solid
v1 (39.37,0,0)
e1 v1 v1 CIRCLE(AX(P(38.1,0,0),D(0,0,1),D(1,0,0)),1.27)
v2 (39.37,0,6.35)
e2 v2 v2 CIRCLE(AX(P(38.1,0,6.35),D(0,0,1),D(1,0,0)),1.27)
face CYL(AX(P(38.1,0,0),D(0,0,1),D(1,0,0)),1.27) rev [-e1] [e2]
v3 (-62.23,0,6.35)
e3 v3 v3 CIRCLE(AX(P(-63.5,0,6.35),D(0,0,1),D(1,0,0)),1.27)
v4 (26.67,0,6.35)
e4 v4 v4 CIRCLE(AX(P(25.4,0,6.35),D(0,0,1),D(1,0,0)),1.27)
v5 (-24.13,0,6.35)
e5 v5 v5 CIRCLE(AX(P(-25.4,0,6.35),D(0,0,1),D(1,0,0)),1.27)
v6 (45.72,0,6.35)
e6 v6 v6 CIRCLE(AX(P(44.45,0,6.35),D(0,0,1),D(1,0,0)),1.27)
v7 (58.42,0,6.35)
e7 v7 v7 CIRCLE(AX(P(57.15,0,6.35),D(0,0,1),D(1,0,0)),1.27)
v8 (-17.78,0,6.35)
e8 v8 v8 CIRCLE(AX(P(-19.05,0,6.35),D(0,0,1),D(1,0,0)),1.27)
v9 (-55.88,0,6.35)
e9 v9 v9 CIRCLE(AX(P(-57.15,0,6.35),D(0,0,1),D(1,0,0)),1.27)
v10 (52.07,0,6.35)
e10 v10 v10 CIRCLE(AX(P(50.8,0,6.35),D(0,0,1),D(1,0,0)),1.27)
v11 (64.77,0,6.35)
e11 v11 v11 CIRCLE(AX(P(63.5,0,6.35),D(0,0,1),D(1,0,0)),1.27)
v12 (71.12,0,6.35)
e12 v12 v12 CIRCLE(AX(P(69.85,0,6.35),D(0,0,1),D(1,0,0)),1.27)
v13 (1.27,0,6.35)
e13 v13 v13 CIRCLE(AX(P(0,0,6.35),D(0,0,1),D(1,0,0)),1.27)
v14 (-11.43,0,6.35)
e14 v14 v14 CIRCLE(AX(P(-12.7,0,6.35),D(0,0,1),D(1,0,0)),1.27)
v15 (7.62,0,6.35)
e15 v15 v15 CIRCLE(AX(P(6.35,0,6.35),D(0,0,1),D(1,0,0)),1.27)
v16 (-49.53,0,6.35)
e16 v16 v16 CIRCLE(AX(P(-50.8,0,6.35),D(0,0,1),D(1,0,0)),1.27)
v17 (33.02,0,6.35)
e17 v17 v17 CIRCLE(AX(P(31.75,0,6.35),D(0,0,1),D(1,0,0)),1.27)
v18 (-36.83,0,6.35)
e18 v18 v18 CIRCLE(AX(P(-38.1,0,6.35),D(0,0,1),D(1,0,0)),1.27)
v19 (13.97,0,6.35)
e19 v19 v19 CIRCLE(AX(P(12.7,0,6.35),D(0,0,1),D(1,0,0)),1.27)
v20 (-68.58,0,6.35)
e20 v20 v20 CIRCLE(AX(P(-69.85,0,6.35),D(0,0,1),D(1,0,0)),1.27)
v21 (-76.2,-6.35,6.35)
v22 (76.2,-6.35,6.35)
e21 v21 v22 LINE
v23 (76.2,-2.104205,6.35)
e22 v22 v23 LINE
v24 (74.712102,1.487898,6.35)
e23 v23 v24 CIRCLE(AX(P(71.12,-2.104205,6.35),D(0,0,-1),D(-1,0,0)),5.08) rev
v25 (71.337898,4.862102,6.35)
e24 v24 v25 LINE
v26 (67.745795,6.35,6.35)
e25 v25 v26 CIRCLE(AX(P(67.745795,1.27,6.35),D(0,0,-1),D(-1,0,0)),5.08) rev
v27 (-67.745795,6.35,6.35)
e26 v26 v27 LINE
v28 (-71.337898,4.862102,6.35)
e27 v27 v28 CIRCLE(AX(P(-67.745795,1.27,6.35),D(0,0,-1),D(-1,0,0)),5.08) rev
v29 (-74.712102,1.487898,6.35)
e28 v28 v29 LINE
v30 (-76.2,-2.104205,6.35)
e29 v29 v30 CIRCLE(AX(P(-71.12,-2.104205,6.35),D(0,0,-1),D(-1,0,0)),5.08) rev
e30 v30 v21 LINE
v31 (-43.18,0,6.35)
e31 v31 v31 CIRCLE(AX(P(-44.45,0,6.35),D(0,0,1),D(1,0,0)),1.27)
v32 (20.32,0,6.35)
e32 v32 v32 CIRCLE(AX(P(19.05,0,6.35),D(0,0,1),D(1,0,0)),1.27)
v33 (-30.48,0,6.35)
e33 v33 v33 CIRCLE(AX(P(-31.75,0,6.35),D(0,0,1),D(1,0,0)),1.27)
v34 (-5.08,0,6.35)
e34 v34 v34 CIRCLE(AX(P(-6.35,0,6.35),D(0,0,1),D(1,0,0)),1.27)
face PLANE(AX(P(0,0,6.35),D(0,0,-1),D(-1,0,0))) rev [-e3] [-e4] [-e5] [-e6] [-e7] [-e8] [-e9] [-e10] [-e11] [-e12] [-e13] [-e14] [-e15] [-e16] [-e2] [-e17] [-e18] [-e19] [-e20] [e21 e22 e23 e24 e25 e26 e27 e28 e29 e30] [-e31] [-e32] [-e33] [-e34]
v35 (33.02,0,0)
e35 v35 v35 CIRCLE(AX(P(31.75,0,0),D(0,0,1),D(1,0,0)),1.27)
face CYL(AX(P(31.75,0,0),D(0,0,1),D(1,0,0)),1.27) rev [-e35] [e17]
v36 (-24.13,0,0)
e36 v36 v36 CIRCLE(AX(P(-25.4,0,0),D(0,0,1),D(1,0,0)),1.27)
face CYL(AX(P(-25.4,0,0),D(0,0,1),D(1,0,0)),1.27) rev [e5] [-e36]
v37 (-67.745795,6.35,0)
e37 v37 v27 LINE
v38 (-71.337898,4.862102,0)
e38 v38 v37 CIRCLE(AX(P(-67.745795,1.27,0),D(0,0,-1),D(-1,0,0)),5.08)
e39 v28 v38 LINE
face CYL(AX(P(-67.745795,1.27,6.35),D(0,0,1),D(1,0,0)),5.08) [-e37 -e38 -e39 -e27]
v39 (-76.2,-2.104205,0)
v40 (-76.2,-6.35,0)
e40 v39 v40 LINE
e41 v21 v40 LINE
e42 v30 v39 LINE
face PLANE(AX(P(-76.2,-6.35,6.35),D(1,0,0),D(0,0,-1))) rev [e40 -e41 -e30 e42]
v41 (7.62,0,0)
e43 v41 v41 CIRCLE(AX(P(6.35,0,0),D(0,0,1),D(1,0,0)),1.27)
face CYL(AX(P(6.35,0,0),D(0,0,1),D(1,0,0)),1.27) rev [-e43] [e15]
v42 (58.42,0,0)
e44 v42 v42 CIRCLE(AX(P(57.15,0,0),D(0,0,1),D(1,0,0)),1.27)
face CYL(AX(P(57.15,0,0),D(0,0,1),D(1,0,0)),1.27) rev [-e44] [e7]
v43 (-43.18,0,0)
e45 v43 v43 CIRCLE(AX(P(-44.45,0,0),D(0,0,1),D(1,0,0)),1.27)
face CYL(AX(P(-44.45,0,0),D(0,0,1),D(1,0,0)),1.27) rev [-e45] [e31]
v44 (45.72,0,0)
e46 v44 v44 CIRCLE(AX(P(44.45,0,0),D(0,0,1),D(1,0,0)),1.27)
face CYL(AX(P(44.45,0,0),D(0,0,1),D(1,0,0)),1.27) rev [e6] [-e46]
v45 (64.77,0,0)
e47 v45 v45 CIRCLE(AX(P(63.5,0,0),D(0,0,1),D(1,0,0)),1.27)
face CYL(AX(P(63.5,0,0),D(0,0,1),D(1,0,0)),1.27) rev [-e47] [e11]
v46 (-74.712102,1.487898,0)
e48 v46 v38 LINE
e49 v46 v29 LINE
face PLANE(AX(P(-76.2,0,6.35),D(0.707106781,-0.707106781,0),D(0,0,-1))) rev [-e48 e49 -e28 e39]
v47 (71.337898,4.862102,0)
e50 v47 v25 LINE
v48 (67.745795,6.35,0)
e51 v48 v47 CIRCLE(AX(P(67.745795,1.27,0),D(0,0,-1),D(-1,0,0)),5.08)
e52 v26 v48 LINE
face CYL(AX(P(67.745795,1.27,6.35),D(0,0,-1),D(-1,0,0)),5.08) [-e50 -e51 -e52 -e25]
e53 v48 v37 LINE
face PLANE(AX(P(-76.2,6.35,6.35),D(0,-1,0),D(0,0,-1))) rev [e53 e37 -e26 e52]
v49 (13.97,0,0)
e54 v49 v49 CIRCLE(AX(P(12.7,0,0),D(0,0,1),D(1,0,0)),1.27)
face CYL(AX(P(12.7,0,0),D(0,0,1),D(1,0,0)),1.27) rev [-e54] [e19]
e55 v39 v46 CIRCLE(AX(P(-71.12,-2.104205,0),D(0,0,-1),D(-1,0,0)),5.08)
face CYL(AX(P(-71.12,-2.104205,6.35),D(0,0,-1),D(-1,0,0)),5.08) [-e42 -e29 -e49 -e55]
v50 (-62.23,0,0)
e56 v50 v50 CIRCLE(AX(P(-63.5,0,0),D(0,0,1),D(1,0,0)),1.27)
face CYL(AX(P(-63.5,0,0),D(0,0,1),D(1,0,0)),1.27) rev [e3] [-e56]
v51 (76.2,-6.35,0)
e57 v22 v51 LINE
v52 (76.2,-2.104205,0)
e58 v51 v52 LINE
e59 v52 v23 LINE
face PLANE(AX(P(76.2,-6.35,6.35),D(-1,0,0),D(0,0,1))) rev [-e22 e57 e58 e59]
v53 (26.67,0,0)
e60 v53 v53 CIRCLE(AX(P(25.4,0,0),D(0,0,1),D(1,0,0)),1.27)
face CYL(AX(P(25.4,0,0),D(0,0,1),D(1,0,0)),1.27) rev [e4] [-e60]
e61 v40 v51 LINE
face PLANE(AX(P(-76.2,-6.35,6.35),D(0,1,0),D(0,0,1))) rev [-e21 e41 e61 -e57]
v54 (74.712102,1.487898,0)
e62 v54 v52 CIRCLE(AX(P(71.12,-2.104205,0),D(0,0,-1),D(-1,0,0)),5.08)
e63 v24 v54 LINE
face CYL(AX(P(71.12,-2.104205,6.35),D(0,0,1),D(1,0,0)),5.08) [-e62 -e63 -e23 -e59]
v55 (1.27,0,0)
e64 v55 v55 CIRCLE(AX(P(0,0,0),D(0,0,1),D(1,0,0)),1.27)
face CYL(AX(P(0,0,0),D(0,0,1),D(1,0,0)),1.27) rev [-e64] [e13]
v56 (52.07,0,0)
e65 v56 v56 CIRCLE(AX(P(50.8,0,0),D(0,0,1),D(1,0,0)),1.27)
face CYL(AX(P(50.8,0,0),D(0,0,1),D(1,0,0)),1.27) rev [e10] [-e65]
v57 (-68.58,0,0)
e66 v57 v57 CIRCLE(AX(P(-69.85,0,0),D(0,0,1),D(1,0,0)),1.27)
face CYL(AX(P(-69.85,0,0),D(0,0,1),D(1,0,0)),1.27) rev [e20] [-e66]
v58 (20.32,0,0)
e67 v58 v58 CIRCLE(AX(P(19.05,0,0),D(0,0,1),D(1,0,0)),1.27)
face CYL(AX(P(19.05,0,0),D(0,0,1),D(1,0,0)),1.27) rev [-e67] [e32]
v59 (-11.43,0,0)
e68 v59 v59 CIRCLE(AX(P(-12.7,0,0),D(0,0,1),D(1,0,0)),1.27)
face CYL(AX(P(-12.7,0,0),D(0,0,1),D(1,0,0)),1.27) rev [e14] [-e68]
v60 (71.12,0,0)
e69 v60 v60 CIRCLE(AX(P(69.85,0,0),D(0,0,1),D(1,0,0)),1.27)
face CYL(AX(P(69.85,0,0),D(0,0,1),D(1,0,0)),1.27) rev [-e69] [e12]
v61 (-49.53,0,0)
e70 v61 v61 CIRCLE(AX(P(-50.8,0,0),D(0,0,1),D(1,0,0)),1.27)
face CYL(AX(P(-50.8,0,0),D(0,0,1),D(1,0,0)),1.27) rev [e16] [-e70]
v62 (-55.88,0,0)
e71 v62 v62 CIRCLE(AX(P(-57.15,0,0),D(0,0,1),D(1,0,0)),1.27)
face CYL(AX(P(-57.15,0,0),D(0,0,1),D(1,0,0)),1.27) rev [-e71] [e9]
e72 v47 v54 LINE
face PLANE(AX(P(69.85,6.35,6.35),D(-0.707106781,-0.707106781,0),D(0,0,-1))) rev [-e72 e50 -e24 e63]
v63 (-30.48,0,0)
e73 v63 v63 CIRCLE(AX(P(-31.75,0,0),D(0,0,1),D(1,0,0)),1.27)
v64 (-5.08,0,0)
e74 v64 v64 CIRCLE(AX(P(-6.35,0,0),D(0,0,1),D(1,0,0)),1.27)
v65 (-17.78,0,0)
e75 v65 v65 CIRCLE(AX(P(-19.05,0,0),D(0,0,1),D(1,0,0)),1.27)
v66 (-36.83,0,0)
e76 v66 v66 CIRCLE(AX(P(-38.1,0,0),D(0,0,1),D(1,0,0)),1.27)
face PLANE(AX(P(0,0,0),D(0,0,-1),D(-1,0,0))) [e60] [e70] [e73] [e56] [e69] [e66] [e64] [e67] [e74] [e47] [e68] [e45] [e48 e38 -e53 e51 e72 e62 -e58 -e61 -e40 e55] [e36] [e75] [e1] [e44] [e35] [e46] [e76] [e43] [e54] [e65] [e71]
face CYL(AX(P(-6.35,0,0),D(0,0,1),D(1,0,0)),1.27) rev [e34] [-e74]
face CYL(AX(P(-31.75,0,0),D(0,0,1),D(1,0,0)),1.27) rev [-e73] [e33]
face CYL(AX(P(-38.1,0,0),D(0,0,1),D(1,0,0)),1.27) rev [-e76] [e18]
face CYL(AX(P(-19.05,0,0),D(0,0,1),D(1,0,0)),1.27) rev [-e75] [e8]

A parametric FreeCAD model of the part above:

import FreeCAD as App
import Part
import Sketcher
Q = App.Units.Quantity


def edges_at(feature, points):
    """Names of the edges that pass closest to the given points."""
    edges = feature.Shape.Edges
    near = lambda p: min(range(len(edges)), key=lambda i: edges[i].distToShape(Part.Vertex(*p))[0])
    return sorted({f"Edge{near(p) + 1}" for p in points})

doc = App.newDocument("Part")
params = doc.addObject("Spreadsheet::Sheet", "Params")
for row, (alias, value) in enumerate([
    ("sketch1_width", "6 in"),
    ("sketch1_height", "0.5 in"),
    ("pad1_length", "0.25 in"),
    ("sketch2_diameter", "0.1 in"),
    ("linearpattern_pitch", "0.25 in"),
    ("linearpattern2_pitch", "0.25 in"),
    ("chamfer_size", "0.25 in"),
    ("fillet_radius", "0.2 in"),
], start=1):
    params.set(f"A{row}", alias)
    params.set(f"B{row}", "=" + value)
    params.setAlias(f"B{row}", alias)

body = doc.addObject("PartDesign::Body", "Body")

sketch1 = body.newObject("Sketcher::SketchObject", "Sketch")
sketch1.AttachmentSupport = (doc.getObject("XY_Plane"), [""])
sketch1.MapMode = "FlatFace"
sketch1.addGeometry(Part.LineSegment(App.Vector(-76, 6, 0), App.Vector(-76, -6, 0)), False)
sketch1.addGeometry(Part.LineSegment(App.Vector(-76, -6, 0), App.Vector(76, -6, 0)), False)
sketch1.addGeometry(Part.LineSegment(App.Vector(76, -6, 0), App.Vector(76, 6, 0)), False)
sketch1.addGeometry(Part.LineSegment(App.Vector(76, 6, 0), App.Vector(-76, 6, 0)), False)
sketch1.addConstraint(Sketcher.Constraint("Coincident", 0, 2, 1, 1))
sketch1.addConstraint(Sketcher.Constraint("Coincident", 1, 2, 2, 1))
sketch1.addConstraint(Sketcher.Constraint("Coincident", 2, 2, 3, 1))
sketch1.addConstraint(Sketcher.Constraint("Coincident", 3, 2, 0, 1))
sketch1.addConstraint(Sketcher.Constraint("Vertical", 0))
sketch1.addConstraint(Sketcher.Constraint("Horizontal", 1))
sketch1.addConstraint(Sketcher.Constraint("Vertical", 2))
sketch1.addConstraint(Sketcher.Constraint("Horizontal", 3))
sketch1.addConstraint(Sketcher.Constraint("Symmetric", 0, 2, 2, 2, -1, 1))
sketch1.addConstraint(Sketcher.Constraint("DistanceX", 1, 1, 1, 2, Q("6 in")))
sketch1.addConstraint(Sketcher.Constraint("DistanceY", 0, 2, 0, 1, Q("0.5 in")))
sketch1.setExpression("Constraints[9]", "Params.sketch1_width")
sketch1.setExpression("Constraints[10]", "Params.sketch1_height")
pad1 = body.newObject("PartDesign::Pad", "Pad")
pad1.Profile = sketch1
pad1.setExpression("Length", "Params.pad1_length")

sketch2 = body.newObject("Sketcher::SketchObject", "Sketch001")
sketch2.AttachmentSupport = (doc.getObject("XY_Plane"), [""])
sketch2.MapMode = "FlatFace"
sketch2.AttachmentOffset = App.Placement(App.Vector(0, 0, 0.25 * 25.4), App.Rotation())
sketch2.addGeometry(Part.Circle(App.Vector(0, 0, 0), App.Vector(0, 0, 1), 1.3), False)
sketch2.addConstraint(Sketcher.Constraint("Coincident", 0, 3, -1, 1))
sketch2.addConstraint(Sketcher.Constraint("Diameter", 0, Q("0.1 in")))
sketch2.setExpression("Constraints[1]", "Params.sketch2_diameter")
pocket1 = body.newObject("PartDesign::Pocket", "Pocket")
pocket1.Profile = sketch2
pocket1.Type = "ThroughAll"
doc.recompute()

linearpattern = body.newObject("PartDesign::LinearPattern", "LinearPattern")
linearpattern.Originals = [pocket1]
linearpattern.Direction = (doc.getObject("X_Axis"), [""])
linearpattern.Mode = "offset"
linearpattern.setExpression("Offset", "Params.linearpattern_pitch")
linearpattern.Occurrences = 12
body.Tip = linearpattern
doc.recompute()

linearpattern2 = body.newObject("PartDesign::LinearPattern", "LinearPattern001")
linearpattern2.Originals = [pocket1]
linearpattern2.Direction = (doc.getObject("X_Axis"), [""])
linearpattern2.Mode = "offset"
linearpattern2.setExpression("Offset", "Params.linearpattern2_pitch")
linearpattern2.Occurrences = 12
linearpattern2.Reversed = True
body.Tip = linearpattern2
doc.recompute()

chamfer = body.newObject("PartDesign::Chamfer", "Chamfer")
chamfer.Base = (linearpattern2, edges_at(linearpattern2, [(-76.2, 6.35, 3.175), (76.2, 6.35, 3.175)]))
chamfer.setExpression("Size", "Params.chamfer_size")
doc.recompute()

fillet = body.newObject("PartDesign::Fillet", "Fillet")
fillet.Base = (chamfer, edges_at(chamfer, [
    (-69.85, 6.35, 3.175),
    (69.85, 6.35, 3.175),
    (76.2, 0, 3.175),
    (-76.2, 0, 3.175),
]))
fillet.setExpression("Radius", "Params.fillet_radius")

doc.recompute()
